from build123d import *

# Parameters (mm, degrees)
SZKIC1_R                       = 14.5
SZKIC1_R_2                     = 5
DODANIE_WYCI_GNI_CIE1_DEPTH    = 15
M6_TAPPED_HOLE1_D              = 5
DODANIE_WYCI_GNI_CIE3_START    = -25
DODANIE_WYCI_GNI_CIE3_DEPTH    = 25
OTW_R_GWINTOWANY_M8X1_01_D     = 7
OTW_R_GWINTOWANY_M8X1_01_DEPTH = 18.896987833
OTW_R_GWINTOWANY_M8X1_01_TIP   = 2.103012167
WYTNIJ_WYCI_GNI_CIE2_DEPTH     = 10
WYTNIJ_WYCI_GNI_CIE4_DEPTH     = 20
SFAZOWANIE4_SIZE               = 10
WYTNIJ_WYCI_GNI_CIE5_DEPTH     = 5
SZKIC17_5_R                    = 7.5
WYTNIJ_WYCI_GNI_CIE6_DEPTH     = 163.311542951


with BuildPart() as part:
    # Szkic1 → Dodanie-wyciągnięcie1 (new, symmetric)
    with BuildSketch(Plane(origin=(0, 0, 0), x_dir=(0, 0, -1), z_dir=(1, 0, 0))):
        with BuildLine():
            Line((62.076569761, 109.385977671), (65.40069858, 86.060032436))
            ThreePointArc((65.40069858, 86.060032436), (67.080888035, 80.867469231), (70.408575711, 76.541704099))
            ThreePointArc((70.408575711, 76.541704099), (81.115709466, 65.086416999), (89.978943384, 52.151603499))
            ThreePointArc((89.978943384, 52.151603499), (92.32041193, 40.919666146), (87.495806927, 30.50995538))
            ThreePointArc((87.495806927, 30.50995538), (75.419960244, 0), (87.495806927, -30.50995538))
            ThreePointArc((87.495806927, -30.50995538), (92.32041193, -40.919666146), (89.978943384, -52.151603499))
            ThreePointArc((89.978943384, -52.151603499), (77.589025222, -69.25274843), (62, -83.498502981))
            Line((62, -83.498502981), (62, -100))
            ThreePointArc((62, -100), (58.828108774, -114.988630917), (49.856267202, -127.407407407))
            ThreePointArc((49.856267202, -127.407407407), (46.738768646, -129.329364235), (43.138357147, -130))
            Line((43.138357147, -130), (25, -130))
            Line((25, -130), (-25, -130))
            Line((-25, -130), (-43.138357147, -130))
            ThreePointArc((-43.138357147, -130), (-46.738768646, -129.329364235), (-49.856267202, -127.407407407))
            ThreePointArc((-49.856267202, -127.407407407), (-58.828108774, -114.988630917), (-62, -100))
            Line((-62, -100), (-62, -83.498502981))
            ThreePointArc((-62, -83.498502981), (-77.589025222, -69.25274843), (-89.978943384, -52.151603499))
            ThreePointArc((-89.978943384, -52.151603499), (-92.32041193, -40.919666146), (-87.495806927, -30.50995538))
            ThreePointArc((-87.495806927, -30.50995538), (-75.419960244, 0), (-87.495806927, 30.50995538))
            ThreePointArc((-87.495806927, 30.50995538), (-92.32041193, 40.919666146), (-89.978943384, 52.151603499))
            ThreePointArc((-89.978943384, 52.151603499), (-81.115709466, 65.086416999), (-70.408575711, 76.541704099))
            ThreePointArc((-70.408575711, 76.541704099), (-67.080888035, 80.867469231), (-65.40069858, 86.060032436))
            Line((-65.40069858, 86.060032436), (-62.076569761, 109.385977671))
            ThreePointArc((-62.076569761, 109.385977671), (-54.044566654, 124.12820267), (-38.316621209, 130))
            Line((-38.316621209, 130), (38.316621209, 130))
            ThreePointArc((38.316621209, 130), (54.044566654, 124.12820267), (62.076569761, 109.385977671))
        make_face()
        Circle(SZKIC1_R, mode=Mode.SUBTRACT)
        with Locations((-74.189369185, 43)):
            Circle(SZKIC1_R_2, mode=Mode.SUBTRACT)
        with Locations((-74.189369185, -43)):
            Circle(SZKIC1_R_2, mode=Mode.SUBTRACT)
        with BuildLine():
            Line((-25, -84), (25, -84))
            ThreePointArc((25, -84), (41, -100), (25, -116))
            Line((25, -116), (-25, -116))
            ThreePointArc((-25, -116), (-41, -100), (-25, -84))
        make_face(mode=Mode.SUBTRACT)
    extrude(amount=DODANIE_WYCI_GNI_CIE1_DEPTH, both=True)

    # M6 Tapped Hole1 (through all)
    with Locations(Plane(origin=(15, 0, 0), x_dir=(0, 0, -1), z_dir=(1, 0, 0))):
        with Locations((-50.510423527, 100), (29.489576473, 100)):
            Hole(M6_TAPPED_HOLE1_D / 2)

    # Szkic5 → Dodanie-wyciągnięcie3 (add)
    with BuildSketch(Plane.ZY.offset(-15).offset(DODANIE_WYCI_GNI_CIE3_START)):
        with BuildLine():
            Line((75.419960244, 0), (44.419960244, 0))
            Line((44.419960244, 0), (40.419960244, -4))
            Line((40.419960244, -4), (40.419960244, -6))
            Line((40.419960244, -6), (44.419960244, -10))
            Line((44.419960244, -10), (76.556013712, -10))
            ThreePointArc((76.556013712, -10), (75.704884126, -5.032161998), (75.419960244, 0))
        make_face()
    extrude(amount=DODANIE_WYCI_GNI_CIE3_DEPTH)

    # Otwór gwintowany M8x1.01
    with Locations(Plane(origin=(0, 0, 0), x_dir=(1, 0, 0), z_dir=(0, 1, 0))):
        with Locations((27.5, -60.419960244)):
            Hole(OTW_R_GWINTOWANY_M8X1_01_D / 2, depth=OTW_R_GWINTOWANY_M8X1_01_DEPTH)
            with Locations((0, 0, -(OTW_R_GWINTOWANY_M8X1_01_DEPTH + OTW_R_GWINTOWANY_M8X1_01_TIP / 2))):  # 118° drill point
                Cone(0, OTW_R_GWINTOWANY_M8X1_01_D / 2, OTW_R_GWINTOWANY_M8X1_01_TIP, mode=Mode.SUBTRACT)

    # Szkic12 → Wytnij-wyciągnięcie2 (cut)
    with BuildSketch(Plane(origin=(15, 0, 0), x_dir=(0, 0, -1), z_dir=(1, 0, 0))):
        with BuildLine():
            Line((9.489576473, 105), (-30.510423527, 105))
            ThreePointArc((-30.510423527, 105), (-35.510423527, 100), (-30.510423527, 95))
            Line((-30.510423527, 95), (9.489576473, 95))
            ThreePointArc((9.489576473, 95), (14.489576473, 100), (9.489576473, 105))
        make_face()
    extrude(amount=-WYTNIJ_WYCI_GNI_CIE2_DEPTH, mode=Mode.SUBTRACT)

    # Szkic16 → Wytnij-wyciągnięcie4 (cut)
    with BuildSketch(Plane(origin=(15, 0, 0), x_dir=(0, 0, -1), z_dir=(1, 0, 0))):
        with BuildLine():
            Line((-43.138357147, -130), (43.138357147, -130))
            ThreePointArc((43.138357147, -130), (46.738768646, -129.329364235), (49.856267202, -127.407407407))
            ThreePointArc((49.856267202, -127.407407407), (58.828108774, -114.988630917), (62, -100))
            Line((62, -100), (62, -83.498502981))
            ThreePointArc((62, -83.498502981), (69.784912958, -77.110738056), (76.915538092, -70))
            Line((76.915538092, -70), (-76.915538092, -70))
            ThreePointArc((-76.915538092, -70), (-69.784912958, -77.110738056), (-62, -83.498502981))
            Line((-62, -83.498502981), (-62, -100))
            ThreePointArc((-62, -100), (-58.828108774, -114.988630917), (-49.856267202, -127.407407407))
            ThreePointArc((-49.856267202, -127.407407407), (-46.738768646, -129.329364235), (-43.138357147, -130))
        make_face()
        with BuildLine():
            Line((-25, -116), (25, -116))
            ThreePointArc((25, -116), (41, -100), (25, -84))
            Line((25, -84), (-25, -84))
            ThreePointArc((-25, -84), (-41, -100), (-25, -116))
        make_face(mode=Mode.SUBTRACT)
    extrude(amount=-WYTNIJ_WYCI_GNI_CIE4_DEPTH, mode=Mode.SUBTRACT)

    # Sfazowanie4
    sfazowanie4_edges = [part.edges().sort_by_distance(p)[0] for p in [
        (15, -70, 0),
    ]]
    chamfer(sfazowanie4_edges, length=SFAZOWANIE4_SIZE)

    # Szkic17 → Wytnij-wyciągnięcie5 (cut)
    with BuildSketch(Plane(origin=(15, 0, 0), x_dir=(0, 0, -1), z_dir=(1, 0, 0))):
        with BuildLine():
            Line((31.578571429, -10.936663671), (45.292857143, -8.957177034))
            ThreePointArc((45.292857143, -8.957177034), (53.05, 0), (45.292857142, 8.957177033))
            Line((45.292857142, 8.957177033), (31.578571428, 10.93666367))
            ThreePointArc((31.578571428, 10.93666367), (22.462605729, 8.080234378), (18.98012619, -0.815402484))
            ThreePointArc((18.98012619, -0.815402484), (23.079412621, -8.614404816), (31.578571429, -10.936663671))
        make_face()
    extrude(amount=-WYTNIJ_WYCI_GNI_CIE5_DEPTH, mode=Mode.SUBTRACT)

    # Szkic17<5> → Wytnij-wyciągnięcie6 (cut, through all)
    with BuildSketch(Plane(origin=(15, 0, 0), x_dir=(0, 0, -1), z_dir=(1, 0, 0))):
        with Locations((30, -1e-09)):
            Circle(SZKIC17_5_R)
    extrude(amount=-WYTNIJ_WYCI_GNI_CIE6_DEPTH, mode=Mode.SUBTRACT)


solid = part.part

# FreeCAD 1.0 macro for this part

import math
import FreeCAD as App
import Part
import Sketcher
from FreeCAD import Vector


def edges_at(feature, points):
    """Names of the edges that pass closest to the given points."""
    edges = feature.Shape.Edges
    near = lambda p: min(range(len(edges)), key=lambda i: edges[i].distToShape(Part.Vertex(*p))[0])
    return sorted({f"Edge{near(p) + 1}" for p in points})

doc = App.newDocument("Part")
body = doc.addObject("PartDesign::Body", "Body")

# Sketch on YZ plane
sketch1 = body.newObject("Sketcher::SketchObject", "Sketch")
sketch1.AttachmentSupport = (doc.getObject("YZ_Plane"), [""])
sketch1.MapMode = "FlatFace"
sketch1.addGeometry([
    Part.LineSegment(Vector(86, -65, 0), Vector(109, -62, 0)),  # 0
    Part.ArcOfCircle(Part.Circle(Vector(106, -38, 0), Vector(0, 0, 1), 24), math.radians(-82), math.radians(0)),  # 1
    Part.LineSegment(Vector(130, -38, 0), Vector(130, 38, 0)),  # 2
    Part.ArcOfCircle(Part.Circle(Vector(106, 38, 0), Vector(0, 0, 1), 24), math.radians(0), math.radians(82)),  # 3
    Part.LineSegment(Vector(109, 62, 0), Vector(86, 65, 0)),  # 4
    Part.ArcOfCircle(Part.Circle(Vector(88, 81, 0), Vector(0, 0, 1), 16), math.radians(-137), math.radians(-98)),  # 5
    Part.ArcOfCircle(Part.Circle(Vector(0, 0, 0), Vector(0, 0, 1), 104), math.radians(42.61), math.radians(59.9)),  # 6
    Part.ArcOfCircle(Part.Circle(Vector(43, 74, 0), Vector(0, 0, 1), 18), math.radians(60), math.radians(133)),  # 7
    Part.ArcOfCircle(Part.Circle(Vector(0, 120, 0), Vector(0, 0, 1), 45), math.radians(-133), math.radians(-47)),  # 8
    Part.ArcOfCircle(Part.Circle(Vector(-43, 74, 0), Vector(0, 0, 1), 18), math.radians(47), math.radians(120)),  # 9
    Part.ArcOfCircle(Part.Circle(Vector(0, 0, 0), Vector(0, 0, 1), 104), math.radians(120), math.radians(143)),  # 10
    Part.LineSegment(Vector(-83, 62, 0), Vector(-100, 62, 0)),  # 11
    Part.ArcOfCircle(Part.Circle(Vector(-100, 25, 0), Vector(0, 0, 1), 37), math.radians(90), math.radians(138)),  # 12
    Part.ArcOfCircle(Part.Circle(Vector(-120, 43, 0), Vector(0, 0, 1), 10), math.radians(138), math.radians(180)),  # 13
    Part.LineSegment(Vector(-130, 43, 0), Vector(-130, -43, 0)),  # 14
    Part.ArcOfCircle(Part.Circle(Vector(-120, -43, 0), Vector(0, 0, 1), 10), math.radians(-180), math.radians(-138)),  # 15
    Part.ArcOfCircle(Part.Circle(Vector(-100, -25, 0), Vector(0, 0, 1), 37), math.radians(-138), math.radians(-90)),  # 16
    Part.LineSegment(Vector(-100, -62, 0), Vector(-83, -62, 0)),  # 17
    Part.ArcOfCircle(Part.Circle(Vector(0, 0, 0), Vector(0, 0, 1), 104), math.radians(-143), math.radians(-120)),  # 18
    Part.ArcOfCircle(Part.Circle(Vector(-43, -74, 0), Vector(0, 0, 1), 18), math.radians(-120), math.radians(-47)),  # 19
    Part.ArcOfCircle(Part.Circle(Vector(0, -120, 0), Vector(0, 0, 1), 45), math.radians(47), math.radians(133)),  # 20
    Part.ArcOfCircle(Part.Circle(Vector(43, -74, 0), Vector(0, 0, 1), 18), math.radians(-133), math.radians(-60)),  # 21
    Part.ArcOfCircle(Part.Circle(Vector(0, 0, 0), Vector(0, 0, 1), 104), math.radians(-59.9), math.radians(-42.61)),  # 22
    Part.ArcOfCircle(Part.Circle(Vector(88, -81, 0), Vector(0, 0, 1), 16), math.radians(98), math.radians(137)),  # 23
    Part.LineSegment(Vector(-84, 25, 0), Vector(-84, -25, 0)),  # 24
    Part.ArcOfCircle(Part.Circle(Vector(-100, -25, 0), Vector(0, 0, 1), 16), math.radians(180), math.radians(360)),  # 25
    Part.LineSegment(Vector(-116, -25, 0), Vector(-116, 25, 0)),  # 26
    Part.ArcOfCircle(Part.Circle(Vector(-100, 25, 0), Vector(0, 0, 1), 16), math.radians(0), math.radians(180)),  # 27
    Part.Circle(Vector(-43, 74, 0), Vector(0, 0, 1), 5),  # 28
    Part.Circle(Vector(0, 0, 0), Vector(0, 0, 1), 14),  # 29
    Part.Circle(Vector(43, 74, 0), Vector(0, 0, 1), 5),  # 30
], False)
sketch1.addConstraint([
    Sketcher.Constraint("Tangent", 0, 2, 1, 1),
    Sketcher.Constraint("Tangent", 1, 2, 2, 1),
    Sketcher.Constraint("Tangent", 2, 2, 3, 1),
    Sketcher.Constraint("Tangent", 3, 2, 4, 1),
    Sketcher.Constraint("Tangent", 4, 2, 5, 2),
    Sketcher.Constraint("Tangent", 5, 1, 6, 1),
    Sketcher.Constraint("Tangent", 6, 2, 7, 1),
    Sketcher.Constraint("Tangent", 7, 2, 8, 2),
    Sketcher.Constraint("Tangent", 8, 1, 9, 1),
    Sketcher.Constraint("Tangent", 9, 2, 10, 1),
    Sketcher.Constraint("Coincident", 10, 2, 11, 1),
    Sketcher.Constraint("Tangent", 11, 2, 12, 1),
    Sketcher.Constraint("Tangent", 12, 2, 13, 1),
    Sketcher.Constraint("Tangent", 13, 2, 14, 1),
    Sketcher.Constraint("Tangent", 14, 2, 15, 1),
    Sketcher.Constraint("Tangent", 15, 2, 16, 1),
    Sketcher.Constraint("Tangent", 16, 2, 17, 1),
    Sketcher.Constraint("Coincident", 17, 2, 18, 1),
    Sketcher.Constraint("Tangent", 18, 2, 19, 1),
    Sketcher.Constraint("Tangent", 19, 2, 20, 2),
    Sketcher.Constraint("Tangent", 20, 1, 21, 1),
    Sketcher.Constraint("Tangent", 21, 2, 22, 1),
    Sketcher.Constraint("Tangent", 22, 2, 23, 2),
    Sketcher.Constraint("Tangent", 23, 1, 0, 1),
    Sketcher.Constraint("Tangent", 24, 2, 25, 2),
    Sketcher.Constraint("Tangent", 25, 1, 26, 1),
    Sketcher.Constraint("Tangent", 26, 2, 27, 2),
    Sketcher.Constraint("Tangent", 27, 1, 24, 1),
    Sketcher.Constraint("Vertical", 2),
    Sketcher.Constraint("Horizontal", 11),
    Sketcher.Constraint("Vertical", 14),
    Sketcher.Constraint("Horizontal", 17),
    Sketcher.Constraint("Vertical", 24),
    Sketcher.Constraint("Vertical", 26),
    Sketcher.Constraint("Coincident", 6, 3, -1, 1),
    Sketcher.Constraint("Coincident", 10, 3, -1, 1),
    Sketcher.Constraint("Coincident", 18, 3, -1, 1),
    Sketcher.Constraint("Coincident", 22, 3, -1, 1),
    Sketcher.Constraint("Coincident", 29, 3, -1, 1),
    Sketcher.Constraint("Coincident", 25, 3, 16, 3),
    Sketcher.Constraint("Coincident", 27, 3, 12, 3),
    Sketcher.Constraint("Coincident", 28, 3, 9, 3),
    Sketcher.Constraint("Coincident", 30, 3, 7, 3),
    Sketcher.Constraint("Equal", 1, 3),
    Sketcher.Constraint("Equal", 7, 9),
    Sketcher.Constraint("Equal", 6, 10),
    Sketcher.Constraint("Equal", 13, 15),
    Sketcher.Constraint("Equal", 12, 16),
    Sketcher.Constraint("Equal", 10, 18),
    Sketcher.Constraint("Equal", 9, 19),
    Sketcher.Constraint("Equal", 8, 20),
    Sketcher.Constraint("Equal", 19, 21),
    Sketcher.Constraint("Equal", 18, 22),
    Sketcher.Constraint("Equal", 5, 23),
    Sketcher.Constraint("Equal", 23, 25),
    Sketcher.Constraint("Equal", 28, 30),
    Sketcher.Constraint("Symmetric", 8, 3, 20, 3, -1, 1),
    Sketcher.Constraint("Symmetric", 0, 2, 3, 2, -1),
    Sketcher.Constraint("PointOnObject", 8, 3, -2),
    Sketcher.Constraint("Vertical", 10, 2, 17, 2),
    Sketcher.Constraint("Diameter", 28, 10.0),
    Sketcher.Constraint("Diameter", 29, 29.0),
    Sketcher.Constraint("Radius", 1, 24.0),
    Sketcher.Constraint("Radius", 5, 16.0),
    Sketcher.Constraint("Radius", 6, 104.0),
    Sketcher.Constraint("Radius", 12, 37.0),
    Sketcher.Constraint("Radius", 13, 10.0),
    Sketcher.Constraint("DistanceY", 24, 2, 24, 1, 50.0),
    Sketcher.Constraint("Radius", 7, 18.25),
    Sketcher.Constraint("DistanceX", -1, 1, 1, 3, 106.0),
    Sketcher.Constraint("DistanceX", -1, 1, 7, 3, 43.0),
    Sketcher.Constraint("DistanceY", -1, 1, 8, 3, 120.0),
    Sketcher.Constraint("DistanceX", 12, 3, -1, 1, 100.0),
    Sketcher.Constraint("DistanceX", 13, 3, -1, 1, 120.0),
    Sketcher.Constraint("DistanceY", -1, 1, 4, 2, 65.400699),
    Sketcher.Constraint("DistanceY", 21, 3, 0, 2, 12.112799),
])
pad1 = body.newObject("PartDesign::Pad", "Pad")
pad1.Profile = sketch1
pad1.Length = 30
pad1.Midplane = True

# Sketch on YZ plane
sketch2 = body.newObject("Sketcher::SketchObject", "Sketch001")
sketch2.AttachmentSupport = (doc.getObject("YZ_Plane"), [""])
sketch2.MapMode = "FlatFace"
sketch2.AttachmentOffset = App.Placement(Vector(0, 0, 15), App.Rotation())
sketch2.addGeometry([
    Part.Circle(Vector(100, 50.5, 0), Vector(0, 0, 1), 2.5),
    Part.Circle(Vector(100, -29.5, 0), Vector(0, 0, 1), 2.5),
], False)
sketch2.addConstraint([
    Sketcher.Constraint("Equal", 0, 1),
    Sketcher.Constraint("Vertical", 0, 3, 1, 3),
    Sketcher.Constraint("Diameter", 0, 5.0),
    Sketcher.Constraint("DistanceX", -1, 1, 0, 3, 100.0),
    Sketcher.Constraint("DistanceY", 1, 3, 0, 3, 80.0),
    Sketcher.Constraint("DistanceY", -1, 1, 0, 3, 50.510424),
])
doc.recompute()
hole = body.newObject("PartDesign::Hole", "Hole")
hole.Profile = sketch2
hole.ThreadType = "None"
hole.Diameter = 5
hole.DepthType = "ThroughAll"

# Sketch on YZ plane
sketch3 = body.newObject("Sketcher::SketchObject", "Sketch002")
sketch3.AttachmentSupport = (doc.getObject("YZ_Plane"), [""])
sketch3.MapMode = "FlatFace"
sketch3.AttachmentOffset = App.Placement(Vector(0, 0, 40), App.Rotation())
sketch3.addGeometry([
    Part.LineSegment(Vector(0, 75.4, 0), Vector(0, 44.4, 0)),  # 0
    Part.LineSegment(Vector(0, 44.4, 0), Vector(-4, 40.4, 0)),  # 1
    Part.LineSegment(Vector(-4, 40.4, 0), Vector(-6, 40.4, 0)),  # 2
    Part.LineSegment(Vector(-6, 40.4, 0), Vector(-10, 44.4, 0)),  # 3
    Part.LineSegment(Vector(-10, 44.4, 0), Vector(-10, 76.6, 0)),  # 4
    Part.ArcOfCircle(Part.Circle(Vector(0, 120, 0), Vector(0, 0, 1), 44.6), math.radians(-102.96), math.radians(-90)),  # 5
], False)
sketch3.addConstraint([
    Sketcher.Constraint("Coincident", 0, 2, 1, 1),
    Sketcher.Constraint("Coincident", 1, 2, 2, 1),
    Sketcher.Constraint("Coincident", 2, 2, 3, 1),
    Sketcher.Constraint("Coincident", 3, 2, 4, 1),
    Sketcher.Constraint("Coincident", 4, 2, 5, 1),
    Sketcher.Constraint("Coincident", 5, 2, 0, 1),
    Sketcher.Constraint("Vertical", 0),
    Sketcher.Constraint("Horizontal", 2),
    Sketcher.Constraint("Vertical", 4),
    Sketcher.Constraint("PointOnObject", 5, 3, -2),
    Sketcher.Constraint("PointOnObject", 0, 2, -2),
    Sketcher.Constraint("Perpendicular", 1, 3),
    Sketcher.Constraint("Horizontal", 0, 2, 3, 2),
    Sketcher.Constraint("Equal", 1, 3),
    Sketcher.Constraint("DistanceX", 2, 2, 2, 1, 2.0),
    Sketcher.Constraint("DistanceY", 0, 2, 0, 1, 31.0),
    Sketcher.Constraint("DistanceY", -1, 1, 5, 3, 120.0),
    Sketcher.Constraint("DistanceX", 1, 2, -1, 1, 4.0),
    Sketcher.Constraint("Radius", 5, 44.58004),
])
pad2 = body.newObject("PartDesign::Pad", "Pad001")
pad2.Profile = sketch3
pad2.Length = 25
pad2.Reversed = True

# Sketch on XZ plane
sketch4 = body.newObject("Sketcher::SketchObject", "Sketch003")
sketch4.AttachmentSupport = (doc.getObject("XZ_Plane"), [""])
sketch4.MapMode = "FlatFace"
sketch4.addGeometry(Part.Circle(Vector(27.5, 60.4, 0), Vector(0, 0, 1), 3.5), False)
sketch4.addConstraint([
    Sketcher.Constraint("Diameter", 0, 7.0),
    Sketcher.Constraint("DistanceX", -1, 1, 0, 3, 27.5),
    Sketcher.Constraint("DistanceY", -1, 1, 0, 3, 60.41996),
])
doc.recompute()
hole2 = body.newObject("PartDesign::Hole", "Hole001")
hole2.Profile = sketch4
hole2.ThreadType = "None"
hole2.Diameter = 7
hole2.DepthType = "Dimension"
hole2.Depth = 18.896988
hole2.DrillPoint = "Angled"
hole2.DrillPointAngle = 118
hole2.Reversed = True

# Sketch on YZ plane
sketch5 = body.newObject("Sketcher::SketchObject", "Sketch004")
sketch5.AttachmentSupport = (doc.getObject("YZ_Plane"), [""])
sketch5.MapMode = "FlatFace"
sketch5.AttachmentOffset = App.Placement(Vector(0, 0, 15), App.Rotation())
sketch5.addGeometry([
    Part.LineSegment(Vector(105, -9, 0), Vector(105, 31, 0)),
    Part.ArcOfCircle(Part.Circle(Vector(100, 31, 0), Vector(0, 0, 1), 5), math.radians(0), math.radians(180)),
    Part.LineSegment(Vector(95, 31, 0), Vector(95, -9, 0)),
    Part.ArcOfCircle(Part.Circle(Vector(100, -9, 0), Vector(0, 0, 1), 5), math.radians(180), math.radians(360)),
], False)
sketch5.addConstraint([
    Sketcher.Constraint("Tangent", 0, 2, 1, 1),
    Sketcher.Constraint("Tangent", 1, 2, 2, 1),
    Sketcher.Constraint("Tangent", 2, 2, 3, 1),
    Sketcher.Constraint("Tangent", 3, 2, 0, 1),
    Sketcher.Constraint("Vertical", 0),
    Sketcher.Constraint("Vertical", 2),
    Sketcher.Constraint("Radius", 1, 5.0),
    Sketcher.Constraint("DistanceY", 0, 1, 0, 2, 40.0),
    Sketcher.Constraint("DistanceX", -1, 1, 1, 3, 100.0),
    Sketcher.Constraint("DistanceY", -1, 1, 1, 3, 30.510424),
])
pocket1 = body.newObject("PartDesign::Pocket", "Pocket")
pocket1.Profile = sketch5
pocket1.Length = 10

# Sketch on YZ plane
sketch6 = body.newObject("Sketcher::SketchObject", "Sketch005")
sketch6.AttachmentSupport = (doc.getObject("YZ_Plane"), [""])
sketch6.MapMode = "FlatFace"
sketch6.AttachmentOffset = App.Placement(Vector(0, 0, 15), App.Rotation())
sketch6.addGeometry([
    Part.LineSegment(Vector(-130, 43, 0), Vector(-130, -43, 0)),  # 0
    Part.ArcOfCircle(Part.Circle(Vector(-120, -43, 0), Vector(0, 0, 1), 10), math.radians(-180), math.radians(-138)),  # 1
    Part.ArcOfCircle(Part.Circle(Vector(-100, -25, 0), Vector(0, 0, 1), 37), math.radians(-138), math.radians(-90)),  # 2
    Part.LineSegment(Vector(-100, -62, 0), Vector(-83, -62, 0)),  # 3
    Part.ArcOfCircle(Part.Circle(Vector(0, 0, 0), Vector(0, 0, 1), 104), math.radians(-143.41), math.radians(-132.3)),  # 4
    Part.LineSegment(Vector(-70, -77, 0), Vector(-70, 77, 0)),  # 5
    Part.ArcOfCircle(Part.Circle(Vector(0, 0, 0), Vector(0, 0, 1), 104), math.radians(132.3), math.radians(143.41)),  # 6
    Part.LineSegment(Vector(-83, 62, 0), Vector(-100, 62, 0)),  # 7
    Part.ArcOfCircle(Part.Circle(Vector(-100, 25, 0), Vector(0, 0, 1), 37), math.radians(90), math.radians(138)),  # 8
    Part.ArcOfCircle(Part.Circle(Vector(-120, 43, 0), Vector(0, 0, 1), 10), math.radians(138), math.radians(180)),  # 9
    Part.LineSegment(Vector(-116, -25, 0), Vector(-116, 25, 0)),  # 10
    Part.ArcOfCircle(Part.Circle(Vector(-100, 25, 0), Vector(0, 0, 1), 16), math.radians(0), math.radians(180)),  # 11
    Part.LineSegment(Vector(-84, 25, 0), Vector(-84, -25, 0)),  # 12
    Part.ArcOfCircle(Part.Circle(Vector(-100, -25, 0), Vector(0, 0, 1), 16), math.radians(180), math.radians(360)),  # 13
], False)
sketch6.addConstraint([
    Sketcher.Constraint("Tangent", 0, 2, 1, 1),
    Sketcher.Constraint("Tangent", 1, 2, 2, 1),
    Sketcher.Constraint("Tangent", 2, 2, 3, 1),
    Sketcher.Constraint("Coincident", 3, 2, 4, 1),
    Sketcher.Constraint("Coincident", 4, 2, 5, 1),
    Sketcher.Constraint("Coincident", 5, 2, 6, 1),
    Sketcher.Constraint("Coincident", 6, 2, 7, 1),
    Sketcher.Constraint("Tangent", 7, 2, 8, 1),
    Sketcher.Constraint("Tangent", 8, 2, 9, 1),
    Sketcher.Constraint("Tangent", 9, 2, 0, 1),
    Sketcher.Constraint("Tangent", 10, 2, 11, 2),
    Sketcher.Constraint("Tangent", 11, 1, 12, 1),
    Sketcher.Constraint("Tangent", 12, 2, 13, 2),
    Sketcher.Constraint("Tangent", 13, 1, 10, 1),
    Sketcher.Constraint("Vertical", 0),
    Sketcher.Constraint("Horizontal", 3),
    Sketcher.Constraint("Vertical", 5),
    Sketcher.Constraint("Horizontal", 7),
    Sketcher.Constraint("Vertical", 10),
    Sketcher.Constraint("Vertical", 12),
    Sketcher.Constraint("Coincident", 4, 3, -1, 1),
    Sketcher.Constraint("Coincident", 6, 3, -1, 1),
    Sketcher.Constraint("Coincident", 11, 3, 8, 3),
    Sketcher.Constraint("Coincident", 13, 3, 2, 3),
    Sketcher.Constraint("Equal", 4, 6),
    Sketcher.Constraint("Equal", 2, 8),
    Sketcher.Constraint("Equal", 1, 9),
    Sketcher.Constraint("Vertical", 3, 2, 6, 2),
    Sketcher.Constraint("Radius", 1, 10.0),
    Sketcher.Constraint("Radius", 2, 37.0),
    Sketcher.Constraint("Radius", 4, 104.0),
    Sketcher.Constraint("Radius", 11, 16.0),
    Sketcher.Constraint("DistanceY", 10, 1, 10, 2, 50.0),
    Sketcher.Constraint("DistanceX", 1, 3, -1, 1, 120.0),
    Sketcher.Constraint("DistanceX", 2, 3, -1, 1, 100.0),
    Sketcher.Constraint("DistanceX", 4, 2, -1, 1, 70.0),
])
pocket2 = body.newObject("PartDesign::Pocket", "Pocket001")
pocket2.Profile = sketch6
pocket2.Length = 20
doc.recompute()

chamfer = body.newObject("PartDesign::Chamfer", "Chamfer")
chamfer.Base = (pocket2, edges_at(pocket2, [(15, -70, 0)]))
chamfer.Size = 10

# Sketch on YZ plane
sketch7 = body.newObject("Sketcher::SketchObject", "Sketch006")
sketch7.AttachmentSupport = (doc.getObject("YZ_Plane"), [""])
sketch7.MapMode = "FlatFace"
sketch7.AttachmentOffset = App.Placement(Vector(0, 0, 15), App.Rotation())
sketch7.addGeometry([
    Part.LineSegment(Vector(-11, -32, 0), Vector(-9, -45, 0)),  # 0
    Part.ArcOfCircle(Part.Circle(Vector(0, -44, 0), Vector(0, 0, 1), 9), math.radians(-172), math.radians(-8)),  # 1
    Part.LineSegment(Vector(9, -45, 0), Vector(11, -32, 0)),  # 2
    Part.ArcOfCircle(Part.Circle(Vector(0, -30, 0), Vector(0, 0, 1), 11), math.radians(-8), math.radians(94)),  # 3
    Part.ArcOfCircle(Part.Circle(Vector(0, -30, 0), Vector(0, 0, 1), 11), math.radians(94), math.radians(188)),  # 4
], False)
sketch7.addConstraint([
    Sketcher.Constraint("Tangent", 0, 2, 1, 1),
    Sketcher.Constraint("Tangent", 1, 2, 2, 1),
    Sketcher.Constraint("Tangent", 2, 2, 3, 1),
    Sketcher.Constraint("Tangent", 3, 2, 4, 1),
    Sketcher.Constraint("Tangent", 4, 2, 0, 1),
    Sketcher.Constraint("Equal", 3, 4),
    Sketcher.Constraint("Symmetric", 0, 2, 1, 2, -2),
    Sketcher.Constraint("Radius", 1, 9.05),
    Sketcher.Constraint("Radius", 3, 11.05),
    Sketcher.Constraint("DistanceY", 1, 3, -1, 1, 44.0),
    Sketcher.Constraint("DistanceY", 3, 3, -1, 1, 30.0),
    Sketcher.Constraint("DistanceY", 0, 2, 3, 2, 26.312731),
])
pocket3 = body.newObject("PartDesign::Pocket", "Pocket002")
pocket3.Profile = sketch7
pocket3.Length = 5

# Sketch on YZ plane
sketch8 = body.newObject("Sketcher::SketchObject", "Sketch007")
sketch8.AttachmentSupport = (doc.getObject("YZ_Plane"), [""])
sketch8.MapMode = "FlatFace"
sketch8.AttachmentOffset = App.Placement(Vector(0, 0, 15), App.Rotation())
sketch8.addGeometry(Part.Circle(Vector(0, -30, 0), Vector(0, 0, 1), 8), False)
sketch8.addConstraint([
    Sketcher.Constraint("PointOnObject", 0, 3, -2),
    Sketcher.Constraint("Diameter", 0, 15.0),
    Sketcher.Constraint("DistanceY", 0, 3, -1, 1, 30.0),
])
pocket4 = body.newObject("PartDesign::Pocket", "Pocket003")
pocket4.Profile = sketch8
pocket4.Type = "ThroughAll"

doc.recompute()
